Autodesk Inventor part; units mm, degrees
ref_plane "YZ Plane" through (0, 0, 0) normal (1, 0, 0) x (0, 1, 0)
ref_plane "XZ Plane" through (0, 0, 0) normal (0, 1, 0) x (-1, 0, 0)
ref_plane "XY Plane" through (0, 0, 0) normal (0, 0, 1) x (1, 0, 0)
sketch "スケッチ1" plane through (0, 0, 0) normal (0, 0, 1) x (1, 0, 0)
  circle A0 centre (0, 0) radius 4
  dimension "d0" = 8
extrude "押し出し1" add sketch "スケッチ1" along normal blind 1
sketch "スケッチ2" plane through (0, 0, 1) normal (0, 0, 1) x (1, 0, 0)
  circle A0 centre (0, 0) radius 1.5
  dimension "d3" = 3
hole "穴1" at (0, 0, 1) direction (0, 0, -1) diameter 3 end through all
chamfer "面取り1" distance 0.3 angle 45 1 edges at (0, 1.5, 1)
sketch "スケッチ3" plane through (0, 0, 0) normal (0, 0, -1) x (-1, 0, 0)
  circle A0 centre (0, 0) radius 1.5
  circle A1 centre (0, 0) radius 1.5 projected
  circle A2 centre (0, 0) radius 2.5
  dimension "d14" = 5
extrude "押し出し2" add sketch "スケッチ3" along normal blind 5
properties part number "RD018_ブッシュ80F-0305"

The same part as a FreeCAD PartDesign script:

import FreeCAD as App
import Part
import Sketcher


def edges_at(feature, points):
    """Names of the edges that pass closest to the given points."""
    edges = feature.Shape.Edges
    near = lambda p: min(range(len(edges)), key=lambda i: edges[i].distToShape(Part.Vertex(*p))[0])
    return sorted({f"Edge{near(p) + 1}" for p in points})

doc = App.newDocument("Part")
params = doc.addObject("Spreadsheet::Sheet", "Params")
for row, (alias, value) in enumerate([
    ("sketch1_diameter", "8 mm"),
    ("pad1_length", "1 mm"),
    ("sketch2_diameter", "3 mm"),
    ("hole_diameter", "3 mm"),
    ("chamfer_size", "0.3 mm"),
    ("sketch3_diameter", "5 mm"),
    ("sketch3_diameter2", "3 mm"),
    ("pad2_length", "5 mm"),
], start=1):
    params.set(f"A{row}", alias)
    params.set(f"B{row}", "=" + value)
    params.setAlias(f"B{row}", alias)

body = doc.addObject("PartDesign::Body", "Body")

sketch1 = body.newObject("Sketcher::SketchObject", "Sketch")
sketch1.AttachmentSupport = (doc.getObject("XY_Plane"), [""])
sketch1.MapMode = "FlatFace"
sketch1.addGeometry(Part.Circle(App.Vector(0, 0, 0), App.Vector(0, 0, 1), 4), False)
sketch1.addConstraint([
    Sketcher.Constraint("Coincident", 0, 3, -1, 1),
    Sketcher.Constraint("Diameter", 0, 8.0),
])
sketch1.setExpression("Constraints[1]", "Params.sketch1_diameter")
pad1 = body.newObject("PartDesign::Pad", "Pad")
pad1.Profile = sketch1
pad1.setExpression("Length", "Params.pad1_length")

sketch2 = body.newObject("Sketcher::SketchObject", "Sketch001")
sketch2.AttachmentSupport = (doc.getObject("XY_Plane"), [""])
sketch2.MapMode = "FlatFace"
sketch2.AttachmentOffset = App.Placement(App.Vector(0, 0, 1), App.Rotation())
sketch2.addGeometry(Part.Circle(App.Vector(0, 0, 0), App.Vector(0, 0, 1), 1.5), False)
sketch2.addConstraint([
    Sketcher.Constraint("Coincident", 0, 3, -1, 1),
    Sketcher.Constraint("Diameter", 0, 3.0),
])
sketch2.setExpression("Constraints[1]", "Params.sketch2_diameter")
doc.recompute()
hole = body.newObject("PartDesign::Hole", "Hole")
hole.Profile = sketch2
hole.ThreadType = "None"
hole.setExpression("Diameter", "Params.hole_diameter")
hole.DepthType = "ThroughAll"
doc.recompute()

chamfer = body.newObject("PartDesign::Chamfer", "Chamfer")
chamfer.Base = (hole, edges_at(hole, [(0, 1.5, 1)]))
chamfer.setExpression("Size", "Params.chamfer_size")

sketch3 = body.newObject("Sketcher::SketchObject", "Sketch002")
sketch3.AttachmentSupport = (doc.getObject("XY_Plane"), [""])
sketch3.MapMode = "FlatFace"
sketch3.addGeometry([
    Part.Circle(App.Vector(0, 0, 0), App.Vector(0, 0, 1), 2.5),
    Part.Circle(App.Vector(0, 0, 0), App.Vector(0, 0, 1), 1.5),
], False)
sketch3.addConstraint([
    Sketcher.Constraint("Coincident", 0, 3, -1, 1),
    Sketcher.Constraint("Coincident", 1, 3, -1, 1),
    Sketcher.Constraint("Diameter", 0, 5.0),
    Sketcher.Constraint("Diameter", 1, 3.0),
])
sketch3.setExpression("Constraints[2]", "Params.sketch3_diameter")
sketch3.setExpression("Constraints[3]", "Params.sketch3_diameter2")
pad2 = body.newObject("PartDesign::Pad", "Pad001")
pad2.Profile = sketch3
pad2.setExpression("Length", "Params.pad2_length")
pad2.Reversed = True

doc.recompute()
